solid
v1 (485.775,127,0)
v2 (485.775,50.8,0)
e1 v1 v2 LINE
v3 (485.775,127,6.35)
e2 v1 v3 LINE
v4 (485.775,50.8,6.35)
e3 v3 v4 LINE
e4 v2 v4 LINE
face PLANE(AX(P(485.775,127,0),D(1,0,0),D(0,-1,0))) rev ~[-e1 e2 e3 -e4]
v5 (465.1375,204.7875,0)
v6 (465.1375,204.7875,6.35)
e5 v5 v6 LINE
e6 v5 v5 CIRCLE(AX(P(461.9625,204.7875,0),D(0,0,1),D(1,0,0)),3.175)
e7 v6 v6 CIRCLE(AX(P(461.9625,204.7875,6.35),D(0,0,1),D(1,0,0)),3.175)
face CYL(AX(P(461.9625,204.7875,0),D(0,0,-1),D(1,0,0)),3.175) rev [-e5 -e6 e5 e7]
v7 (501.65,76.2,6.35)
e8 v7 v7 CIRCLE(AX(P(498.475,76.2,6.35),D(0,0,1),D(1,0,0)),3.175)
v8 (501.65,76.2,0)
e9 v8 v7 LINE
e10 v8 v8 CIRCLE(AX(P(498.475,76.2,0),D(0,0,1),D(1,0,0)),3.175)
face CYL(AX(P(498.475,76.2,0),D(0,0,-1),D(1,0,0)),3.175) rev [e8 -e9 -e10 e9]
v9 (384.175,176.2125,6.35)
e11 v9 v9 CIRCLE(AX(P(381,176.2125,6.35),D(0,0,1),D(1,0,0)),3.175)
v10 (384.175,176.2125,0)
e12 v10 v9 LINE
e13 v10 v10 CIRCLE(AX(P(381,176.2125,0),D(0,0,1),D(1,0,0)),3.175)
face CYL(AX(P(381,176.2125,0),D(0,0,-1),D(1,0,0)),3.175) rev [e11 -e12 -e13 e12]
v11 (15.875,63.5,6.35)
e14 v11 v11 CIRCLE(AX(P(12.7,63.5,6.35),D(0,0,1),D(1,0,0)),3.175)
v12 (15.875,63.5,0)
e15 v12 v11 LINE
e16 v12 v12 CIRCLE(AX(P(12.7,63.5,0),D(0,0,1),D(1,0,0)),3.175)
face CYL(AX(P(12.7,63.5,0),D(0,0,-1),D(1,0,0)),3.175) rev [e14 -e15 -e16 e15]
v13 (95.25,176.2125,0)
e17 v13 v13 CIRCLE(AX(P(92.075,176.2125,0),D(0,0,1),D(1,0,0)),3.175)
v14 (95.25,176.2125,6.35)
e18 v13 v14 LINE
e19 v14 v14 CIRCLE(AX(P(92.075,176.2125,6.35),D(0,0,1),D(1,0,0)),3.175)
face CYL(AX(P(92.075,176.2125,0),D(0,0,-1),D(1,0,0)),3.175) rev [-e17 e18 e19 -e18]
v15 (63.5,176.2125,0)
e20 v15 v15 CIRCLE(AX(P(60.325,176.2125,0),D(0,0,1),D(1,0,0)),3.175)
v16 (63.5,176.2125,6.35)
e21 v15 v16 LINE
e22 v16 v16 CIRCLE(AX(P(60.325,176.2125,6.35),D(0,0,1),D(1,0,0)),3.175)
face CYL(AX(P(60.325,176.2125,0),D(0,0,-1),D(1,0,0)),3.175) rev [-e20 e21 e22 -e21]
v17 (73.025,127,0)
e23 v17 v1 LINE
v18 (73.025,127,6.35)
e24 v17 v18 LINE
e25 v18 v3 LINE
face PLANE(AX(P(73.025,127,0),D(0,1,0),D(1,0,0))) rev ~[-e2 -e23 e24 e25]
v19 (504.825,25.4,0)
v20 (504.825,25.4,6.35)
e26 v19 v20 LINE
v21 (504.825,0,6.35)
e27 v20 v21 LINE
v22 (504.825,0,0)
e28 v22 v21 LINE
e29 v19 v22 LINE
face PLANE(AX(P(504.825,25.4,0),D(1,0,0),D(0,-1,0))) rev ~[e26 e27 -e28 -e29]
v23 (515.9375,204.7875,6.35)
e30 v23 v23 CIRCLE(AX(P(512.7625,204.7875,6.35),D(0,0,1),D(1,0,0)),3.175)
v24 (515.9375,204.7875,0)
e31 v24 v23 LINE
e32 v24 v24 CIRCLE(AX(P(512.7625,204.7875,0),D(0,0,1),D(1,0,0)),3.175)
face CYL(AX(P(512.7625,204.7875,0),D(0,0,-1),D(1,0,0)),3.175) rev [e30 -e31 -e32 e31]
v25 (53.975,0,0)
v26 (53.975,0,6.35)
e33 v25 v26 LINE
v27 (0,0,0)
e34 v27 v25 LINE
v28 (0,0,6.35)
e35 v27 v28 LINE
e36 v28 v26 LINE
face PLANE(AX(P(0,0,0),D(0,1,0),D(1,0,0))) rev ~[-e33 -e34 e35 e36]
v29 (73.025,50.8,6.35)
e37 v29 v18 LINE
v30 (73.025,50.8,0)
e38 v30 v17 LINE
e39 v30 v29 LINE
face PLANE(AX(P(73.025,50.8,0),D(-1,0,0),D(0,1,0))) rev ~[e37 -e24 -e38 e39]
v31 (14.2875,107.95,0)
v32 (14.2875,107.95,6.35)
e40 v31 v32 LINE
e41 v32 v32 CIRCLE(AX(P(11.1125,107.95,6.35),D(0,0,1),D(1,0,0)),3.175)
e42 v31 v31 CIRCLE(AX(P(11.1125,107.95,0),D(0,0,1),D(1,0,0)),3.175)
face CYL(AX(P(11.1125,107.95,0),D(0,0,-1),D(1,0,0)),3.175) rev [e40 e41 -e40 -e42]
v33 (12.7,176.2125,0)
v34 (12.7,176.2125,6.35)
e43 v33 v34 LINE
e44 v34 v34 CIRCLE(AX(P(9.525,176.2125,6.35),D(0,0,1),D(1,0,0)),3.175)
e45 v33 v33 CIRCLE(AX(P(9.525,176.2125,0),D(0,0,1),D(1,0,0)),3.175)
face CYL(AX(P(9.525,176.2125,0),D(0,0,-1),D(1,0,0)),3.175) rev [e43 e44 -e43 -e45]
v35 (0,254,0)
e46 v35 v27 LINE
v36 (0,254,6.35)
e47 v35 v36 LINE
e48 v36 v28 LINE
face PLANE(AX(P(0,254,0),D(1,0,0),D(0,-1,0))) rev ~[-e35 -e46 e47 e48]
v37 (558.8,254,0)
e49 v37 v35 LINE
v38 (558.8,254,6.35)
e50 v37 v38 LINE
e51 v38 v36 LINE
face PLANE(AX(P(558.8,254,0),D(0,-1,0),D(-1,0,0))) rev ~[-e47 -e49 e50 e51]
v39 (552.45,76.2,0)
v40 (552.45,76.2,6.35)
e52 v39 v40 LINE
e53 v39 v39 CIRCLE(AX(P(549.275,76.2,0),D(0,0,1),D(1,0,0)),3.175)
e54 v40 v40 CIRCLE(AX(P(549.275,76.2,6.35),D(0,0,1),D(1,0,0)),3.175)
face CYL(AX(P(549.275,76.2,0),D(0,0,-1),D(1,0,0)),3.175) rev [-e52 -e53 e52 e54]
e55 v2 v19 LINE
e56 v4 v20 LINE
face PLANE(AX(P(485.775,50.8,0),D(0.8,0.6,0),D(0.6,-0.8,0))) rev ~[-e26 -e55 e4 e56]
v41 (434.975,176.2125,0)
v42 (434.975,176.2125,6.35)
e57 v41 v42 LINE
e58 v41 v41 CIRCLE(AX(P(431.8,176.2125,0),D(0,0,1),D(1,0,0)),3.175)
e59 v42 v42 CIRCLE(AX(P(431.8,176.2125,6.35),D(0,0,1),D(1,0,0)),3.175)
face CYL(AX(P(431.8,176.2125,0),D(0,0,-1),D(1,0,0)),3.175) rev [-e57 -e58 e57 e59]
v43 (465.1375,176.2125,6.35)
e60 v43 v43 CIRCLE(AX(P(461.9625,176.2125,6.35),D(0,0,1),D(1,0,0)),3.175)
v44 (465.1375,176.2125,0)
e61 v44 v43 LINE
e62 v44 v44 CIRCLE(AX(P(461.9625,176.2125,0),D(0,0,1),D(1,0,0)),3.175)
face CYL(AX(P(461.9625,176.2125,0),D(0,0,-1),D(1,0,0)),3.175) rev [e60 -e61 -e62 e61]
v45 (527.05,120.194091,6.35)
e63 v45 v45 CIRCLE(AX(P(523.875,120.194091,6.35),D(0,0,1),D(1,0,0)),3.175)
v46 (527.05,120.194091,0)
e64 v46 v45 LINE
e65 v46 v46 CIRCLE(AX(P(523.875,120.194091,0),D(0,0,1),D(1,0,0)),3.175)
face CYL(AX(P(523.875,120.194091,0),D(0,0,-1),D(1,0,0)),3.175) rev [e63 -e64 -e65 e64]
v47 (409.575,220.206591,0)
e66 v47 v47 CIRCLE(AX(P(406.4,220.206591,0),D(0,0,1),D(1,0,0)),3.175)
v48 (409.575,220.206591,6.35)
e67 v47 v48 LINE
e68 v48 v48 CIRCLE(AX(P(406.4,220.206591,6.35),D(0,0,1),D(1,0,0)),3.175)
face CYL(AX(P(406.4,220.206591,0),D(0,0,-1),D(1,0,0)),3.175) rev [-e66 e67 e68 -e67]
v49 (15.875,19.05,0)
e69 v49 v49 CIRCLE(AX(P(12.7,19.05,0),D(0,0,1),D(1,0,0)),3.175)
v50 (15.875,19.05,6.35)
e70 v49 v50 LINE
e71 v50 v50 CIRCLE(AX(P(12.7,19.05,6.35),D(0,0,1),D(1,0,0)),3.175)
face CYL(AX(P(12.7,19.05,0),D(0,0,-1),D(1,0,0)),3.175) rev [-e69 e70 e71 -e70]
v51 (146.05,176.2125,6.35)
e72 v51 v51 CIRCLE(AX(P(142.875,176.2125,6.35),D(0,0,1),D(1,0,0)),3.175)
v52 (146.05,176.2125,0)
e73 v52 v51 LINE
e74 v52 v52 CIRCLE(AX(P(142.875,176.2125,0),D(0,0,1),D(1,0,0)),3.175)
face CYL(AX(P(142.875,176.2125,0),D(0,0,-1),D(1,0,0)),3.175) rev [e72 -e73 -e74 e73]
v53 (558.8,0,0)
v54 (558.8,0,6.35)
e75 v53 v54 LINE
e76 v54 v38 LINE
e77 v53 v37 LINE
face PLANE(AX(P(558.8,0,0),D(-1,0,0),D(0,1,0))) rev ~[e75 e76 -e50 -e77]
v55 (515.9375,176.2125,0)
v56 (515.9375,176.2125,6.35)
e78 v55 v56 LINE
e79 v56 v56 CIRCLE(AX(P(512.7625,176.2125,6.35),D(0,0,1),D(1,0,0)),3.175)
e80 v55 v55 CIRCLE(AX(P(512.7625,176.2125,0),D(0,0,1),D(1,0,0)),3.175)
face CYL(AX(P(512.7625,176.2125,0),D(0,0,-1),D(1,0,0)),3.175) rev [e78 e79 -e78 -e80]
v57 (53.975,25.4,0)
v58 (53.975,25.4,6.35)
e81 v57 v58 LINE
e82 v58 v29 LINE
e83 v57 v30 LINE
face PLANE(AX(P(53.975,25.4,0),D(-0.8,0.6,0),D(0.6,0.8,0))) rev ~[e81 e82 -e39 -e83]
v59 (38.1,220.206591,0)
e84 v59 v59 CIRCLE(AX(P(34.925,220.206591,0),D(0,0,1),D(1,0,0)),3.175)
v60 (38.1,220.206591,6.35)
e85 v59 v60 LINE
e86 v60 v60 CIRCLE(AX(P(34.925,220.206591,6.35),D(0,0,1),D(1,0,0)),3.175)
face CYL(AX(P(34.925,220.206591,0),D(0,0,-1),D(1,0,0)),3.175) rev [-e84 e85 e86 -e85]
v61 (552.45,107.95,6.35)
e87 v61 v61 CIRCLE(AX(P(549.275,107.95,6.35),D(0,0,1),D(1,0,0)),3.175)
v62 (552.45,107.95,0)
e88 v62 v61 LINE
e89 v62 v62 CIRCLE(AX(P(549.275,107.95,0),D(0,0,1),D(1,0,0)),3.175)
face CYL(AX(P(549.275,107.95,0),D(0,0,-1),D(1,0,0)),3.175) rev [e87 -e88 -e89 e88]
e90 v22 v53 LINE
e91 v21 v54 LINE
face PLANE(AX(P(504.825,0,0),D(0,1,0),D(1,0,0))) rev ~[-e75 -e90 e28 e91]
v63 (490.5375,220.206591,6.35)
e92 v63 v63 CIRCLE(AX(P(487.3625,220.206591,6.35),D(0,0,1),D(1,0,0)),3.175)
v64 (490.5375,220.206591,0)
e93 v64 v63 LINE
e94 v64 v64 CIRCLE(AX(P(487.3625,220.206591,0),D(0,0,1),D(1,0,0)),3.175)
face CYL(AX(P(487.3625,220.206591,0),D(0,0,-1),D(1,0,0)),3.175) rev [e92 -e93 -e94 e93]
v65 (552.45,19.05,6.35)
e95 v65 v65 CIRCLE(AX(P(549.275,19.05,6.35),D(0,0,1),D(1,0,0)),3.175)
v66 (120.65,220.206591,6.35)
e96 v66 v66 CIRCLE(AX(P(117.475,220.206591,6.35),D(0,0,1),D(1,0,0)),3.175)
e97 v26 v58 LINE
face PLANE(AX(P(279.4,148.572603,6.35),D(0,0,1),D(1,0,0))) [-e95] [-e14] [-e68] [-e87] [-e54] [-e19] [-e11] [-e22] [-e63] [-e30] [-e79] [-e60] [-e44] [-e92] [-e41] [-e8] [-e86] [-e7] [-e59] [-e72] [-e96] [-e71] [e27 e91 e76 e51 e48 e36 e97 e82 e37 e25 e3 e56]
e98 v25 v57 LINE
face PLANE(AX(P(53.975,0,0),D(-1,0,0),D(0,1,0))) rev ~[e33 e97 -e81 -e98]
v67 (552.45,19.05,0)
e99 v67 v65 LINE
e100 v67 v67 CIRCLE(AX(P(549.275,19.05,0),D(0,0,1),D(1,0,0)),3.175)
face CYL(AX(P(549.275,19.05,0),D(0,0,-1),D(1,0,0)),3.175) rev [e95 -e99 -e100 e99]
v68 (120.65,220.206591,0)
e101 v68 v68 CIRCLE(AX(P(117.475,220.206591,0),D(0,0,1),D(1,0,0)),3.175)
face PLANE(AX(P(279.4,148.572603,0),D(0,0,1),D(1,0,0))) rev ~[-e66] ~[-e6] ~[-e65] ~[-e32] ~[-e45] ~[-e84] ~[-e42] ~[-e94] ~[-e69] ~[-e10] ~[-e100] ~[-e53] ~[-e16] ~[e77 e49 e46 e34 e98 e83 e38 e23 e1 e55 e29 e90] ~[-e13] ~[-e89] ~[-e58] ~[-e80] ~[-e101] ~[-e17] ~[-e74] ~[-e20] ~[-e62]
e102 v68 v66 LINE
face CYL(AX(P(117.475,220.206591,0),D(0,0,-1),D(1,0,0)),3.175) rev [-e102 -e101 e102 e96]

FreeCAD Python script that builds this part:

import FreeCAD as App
import Part
import Sketcher
Q = App.Units.Quantity

doc = App.newDocument("Part")
body = doc.addObject("PartDesign::Body", "Body")

# Sketch on XY plane
sketch1 = doc.addObject("Sketcher::SketchObject", "Sketch")
body.addObject(sketch1)
sketch1.AttachmentSupport = (doc.XY_Plane, [""])
sketch1.MapMode = "FlatFace"
sketch1.addGeometry([
    Part.LineSegment(App.Vector(0, 254, 0), App.Vector(0, 0, 0)),  # 0
    Part.LineSegment(App.Vector(0, 0, 0), App.Vector(54, 0, 0)),  # 1
    Part.LineSegment(App.Vector(54, 0, 0), App.Vector(54, 25.4, 0)),  # 2
    Part.LineSegment(App.Vector(54, 25.4, 0), App.Vector(73, 50.8, 0)),  # 3
    Part.LineSegment(App.Vector(73, 50.8, 0), App.Vector(73, 127, 0)),  # 4
    Part.LineSegment(App.Vector(73, 127, 0), App.Vector(485.8, 127, 0)),  # 5
    Part.LineSegment(App.Vector(485.8, 127, 0), App.Vector(485.8, 50.8, 0)),  # 6
    Part.LineSegment(App.Vector(485.8, 50.8, 0), App.Vector(504.8, 25.4, 0)),  # 7
    Part.LineSegment(App.Vector(504.8, 25.4, 0), App.Vector(504.8, 0, 0)),  # 8
    Part.LineSegment(App.Vector(504.8, 0, 0), App.Vector(558.8, 0, 0)),  # 9
    Part.LineSegment(App.Vector(558.8, 0, 0), App.Vector(558.8, 254, 0)),  # 10
    Part.LineSegment(App.Vector(558.8, 254, 0), App.Vector(0, 254, 0)),  # 11
    Part.Circle(App.Vector(12.7, 19.1, 0), App.Vector(0, 0, 1), 3.2),  # 12
    Part.Circle(App.Vector(12.7, 63.5, 0), App.Vector(0, 0, 1), 3.2),  # 13
    Part.Circle(App.Vector(11.1, 108, 0), App.Vector(0, 0, 1), 3.2),  # 14
    Part.Circle(App.Vector(549.3, 19.1, 0), App.Vector(0, 0, 1), 3.2),  # 15
    Part.Circle(App.Vector(498.5, 76.2, 0), App.Vector(0, 0, 1), 3.2),  # 16
    Part.Circle(App.Vector(549.3, 76.2, 0), App.Vector(0, 0, 1), 3.2),  # 17
    Part.Circle(App.Vector(549.3, 108, 0), App.Vector(0, 0, 1), 3.2),  # 18
    Part.Circle(App.Vector(9.5, 176.2, 0), App.Vector(0, 0, 1), 3.2),  # 19
    Part.Circle(App.Vector(60.3, 176.2, 0), App.Vector(0, 0, 1), 3.2),  # 20
    Part.Circle(App.Vector(92.1, 176.2, 0), App.Vector(0, 0, 1), 3.2),  # 21
    Part.Circle(App.Vector(34.9, 220.2, 0), App.Vector(0, 0, 1), 3.2),  # 22
    Part.Circle(App.Vector(117.5, 220.2, 0), App.Vector(0, 0, 1), 3.2),  # 23
    Part.Circle(App.Vector(142.9, 176.2, 0), App.Vector(0, 0, 1), 3.2),  # 24
    Part.Circle(App.Vector(523.9, 120.2, 0), App.Vector(0, 0, 1), 3.2),  # 25
    Part.Circle(App.Vector(381, 176.2, 0), App.Vector(0, 0, 1), 3.2),  # 26
    Part.Circle(App.Vector(406.4, 220.2, 0), App.Vector(0, 0, 1), 3.2),  # 27
    Part.Circle(App.Vector(431.8, 176.2, 0), App.Vector(0, 0, 1), 3.2),  # 28
    Part.Circle(App.Vector(462, 176.2, 0), App.Vector(0, 0, 1), 3.2),  # 29
    Part.Circle(App.Vector(512.8, 176.2, 0), App.Vector(0, 0, 1), 3.2),  # 30
    Part.Circle(App.Vector(462, 204.8, 0), App.Vector(0, 0, 1), 3.2),  # 31
    Part.Circle(App.Vector(512.8, 204.8, 0), App.Vector(0, 0, 1), 3.2),  # 32
    Part.Circle(App.Vector(487.4, 220.2, 0), App.Vector(0, 0, 1), 3.2),  # 33
], False)
sketch1.addConstraint([
    Sketcher.Constraint("Coincident", 0, 2, 1, 1),
    Sketcher.Constraint("Coincident", 1, 2, 2, 1),
    Sketcher.Constraint("Coincident", 2, 2, 3, 1),
    Sketcher.Constraint("Coincident", 3, 2, 4, 1),
    Sketcher.Constraint("Coincident", 4, 2, 5, 1),
    Sketcher.Constraint("Coincident", 5, 2, 6, 1),
    Sketcher.Constraint("Coincident", 6, 2, 7, 1),
    Sketcher.Constraint("Coincident", 7, 2, 8, 1),
    Sketcher.Constraint("Coincident", 8, 2, 9, 1),
    Sketcher.Constraint("Coincident", 9, 2, 10, 1),
    Sketcher.Constraint("Coincident", 10, 2, 11, 1),
    Sketcher.Constraint("Coincident", 11, 2, 0, 1),
    Sketcher.Constraint("Vertical", 0),
    Sketcher.Constraint("Horizontal", 1),
    Sketcher.Constraint("Vertical", 2),
    Sketcher.Constraint("Vertical", 4),
    Sketcher.Constraint("Horizontal", 5),
    Sketcher.Constraint("Vertical", 6),
    Sketcher.Constraint("Vertical", 8),
    Sketcher.Constraint("Horizontal", 9),
    Sketcher.Constraint("Vertical", 10),
    Sketcher.Constraint("Horizontal", 11),
    Sketcher.Constraint("Coincident", 0, 2, -1, 1),
    Sketcher.Constraint("Equal", 12, 13),
    Sketcher.Constraint("Equal", 13, 14),
    Sketcher.Constraint("Equal", 14, 15),
    Sketcher.Constraint("Equal", 15, 16),
    Sketcher.Constraint("Equal", 16, 17),
    Sketcher.Constraint("Equal", 17, 18),
    Sketcher.Constraint("Equal", 18, 19),
    Sketcher.Constraint("Equal", 19, 20),
    Sketcher.Constraint("Equal", 20, 21),
    Sketcher.Constraint("Equal", 21, 22),
    Sketcher.Constraint("Equal", 22, 23),
    Sketcher.Constraint("Equal", 23, 24),
    Sketcher.Constraint("Equal", 24, 25),
    Sketcher.Constraint("Equal", 25, 26),
    Sketcher.Constraint("Equal", 26, 27),
    Sketcher.Constraint("Equal", 27, 28),
    Sketcher.Constraint("Equal", 28, 29),
    Sketcher.Constraint("Equal", 29, 30),
    Sketcher.Constraint("Equal", 30, 31),
    Sketcher.Constraint("Equal", 31, 32),
    Sketcher.Constraint("Equal", 32, 33),
    Sketcher.Constraint("PointOnObject", 8, 2, -1),
    Sketcher.Constraint("Horizontal", 12, 3, 15, 3),
    Sketcher.Constraint("Horizontal", 16, 3, 17, 3),
    Sketcher.Constraint("Horizontal", 14, 3, 18, 3),
    Sketcher.Constraint("Horizontal", 19, 3, 20, 3),
    Sketcher.Constraint("Horizontal", 20, 3, 21, 3),
    Sketcher.Constraint("Horizontal", 22, 3, 23, 3),
    Sketcher.Constraint("Horizontal", 21, 3, 24, 3),
    Sketcher.Constraint("Horizontal", 24, 3, 26, 3),
    Sketcher.Constraint("Horizontal", 23, 3, 27, 3),
    Sketcher.Constraint("Horizontal", 26, 3, 28, 3),
    Sketcher.Constraint("Horizontal", 28, 3, 29, 3),
    Sketcher.Constraint("Horizontal", 29, 3, 30, 3),
    Sketcher.Constraint("Horizontal", 31, 3, 32, 3),
    Sketcher.Constraint("Horizontal", 27, 3, 33, 3),
    Sketcher.Constraint("Horizontal", 3, 2, 6, 2),
    Sketcher.Constraint("Horizontal", 2, 2, 7, 2),
    Sketcher.Constraint("Vertical", 12, 3, 13, 3),
    Sketcher.Constraint("Vertical", 15, 3, 17, 3),
    Sketcher.Constraint("Vertical", 17, 3, 18, 3),
    Sketcher.Constraint("Vertical", 29, 3, 31, 3),
    Sketcher.Constraint("Vertical", 30, 3, 32, 3),
    Sketcher.Constraint("Equal", 1, 9),
    Sketcher.Constraint("Equal", 3, 7),
    Sketcher.Constraint("Diameter", 12, Q("0.25 in")),
    Sketcher.Constraint("DistanceX", 11, 2, 11, 1, Q("22 in")),
    Sketcher.Constraint("DistanceY", 0, 2, 0, 1, Q("10 in")),
    Sketcher.Constraint("DistanceY", 2, 1, 2, 2, Q("1 in")),
    Sketcher.Constraint("DistanceY", 4, 1, 4, 2, Q("3 in")),
    Sketcher.Constraint("DistanceY", -1, 1, 16, 3, Q("3 in")),
    Sketcher.Constraint("DistanceX", -1, 1, 26, 3, Q("15 in")),
    Sketcher.Constraint("DistanceX", -1, 1, 27, 3, Q("16 in")),
    Sketcher.Constraint("DistanceX", -1, 1, 28, 3, Q("17 in")),
    Sketcher.Constraint("DistanceY", -1, 1, 3, 2, Q("2 in")),
    Sketcher.Constraint("DistanceX", 16, 3, 15, 3, Q("2 in")),
    Sketcher.Constraint("DistanceX", 19, 3, 20, 3, Q("2 in")),
    Sketcher.Constraint("DistanceX", 19, 3, 22, 3, Q("1 in")),
    Sketcher.Constraint("DistanceX", 21, 3, 23, 3, Q("1 in")),
    Sketcher.Constraint("DistanceX", 21, 3, 24, 3, Q("2 in")),
    Sketcher.Constraint("DistanceX", 25, 3, 18, 3, Q("1 in")),
    Sketcher.Constraint("DistanceX", 24, 3, 25, 3, Q("15 in")),
    Sketcher.Constraint("DistanceX", 29, 3, 30, 3, Q("2 in")),
    Sketcher.Constraint("DistanceX", 31, 3, 33, 3, Q("1 in")),
    Sketcher.Constraint("DistanceX", 5, 1, 5, 2, Q("16.25 in")),
    Sketcher.Constraint("DistanceX", -1, 1, 12, 3, Q("0.5 in")),
    Sketcher.Constraint("DistanceY", -1, 1, 13, 3, Q("2.5 in")),
    Sketcher.Constraint("DistanceY", 12, 3, 14, 3, Q("3.5 in")),
    Sketcher.Constraint("DistanceX", 20, 3, 4, 2, Q("0.5 in")),
    Sketcher.Constraint("DistanceX", 5, 2, 25, 3, Q("1.5 in")),
    Sketcher.Constraint("Distance", 3, Q("1.25 in")),
    Sketcher.Constraint("DistanceY", -1, 1, 12, 3, Q("0.75 in")),
    Sketcher.Constraint("DistanceX", -1, 1, 14, 3, Q("0.4375 in")),
    Sketcher.Constraint("DistanceY", -1, 1, 19, 3, Q("6.9375 in")),
    Sketcher.Constraint("DistanceX", -1, 1, 29, 3, Q("18.1875 in")),
    Sketcher.Constraint("DistanceY", -1, 1, 31, 3, Q("8.0625 in")),
    Sketcher.Constraint("DistanceY", 25, 3, 27, 3, Q("3.9375 in")),
    Sketcher.Constraint("DistanceY", -1, 1, 22, 3, Q("220.206591 mm")),
])
pad1 = doc.addObject("PartDesign::Pad", "Pad")
body.addObject(pad1)
pad1.Profile = sketch1
pad1.Length = Q("0.25 in")

doc.recompute()
